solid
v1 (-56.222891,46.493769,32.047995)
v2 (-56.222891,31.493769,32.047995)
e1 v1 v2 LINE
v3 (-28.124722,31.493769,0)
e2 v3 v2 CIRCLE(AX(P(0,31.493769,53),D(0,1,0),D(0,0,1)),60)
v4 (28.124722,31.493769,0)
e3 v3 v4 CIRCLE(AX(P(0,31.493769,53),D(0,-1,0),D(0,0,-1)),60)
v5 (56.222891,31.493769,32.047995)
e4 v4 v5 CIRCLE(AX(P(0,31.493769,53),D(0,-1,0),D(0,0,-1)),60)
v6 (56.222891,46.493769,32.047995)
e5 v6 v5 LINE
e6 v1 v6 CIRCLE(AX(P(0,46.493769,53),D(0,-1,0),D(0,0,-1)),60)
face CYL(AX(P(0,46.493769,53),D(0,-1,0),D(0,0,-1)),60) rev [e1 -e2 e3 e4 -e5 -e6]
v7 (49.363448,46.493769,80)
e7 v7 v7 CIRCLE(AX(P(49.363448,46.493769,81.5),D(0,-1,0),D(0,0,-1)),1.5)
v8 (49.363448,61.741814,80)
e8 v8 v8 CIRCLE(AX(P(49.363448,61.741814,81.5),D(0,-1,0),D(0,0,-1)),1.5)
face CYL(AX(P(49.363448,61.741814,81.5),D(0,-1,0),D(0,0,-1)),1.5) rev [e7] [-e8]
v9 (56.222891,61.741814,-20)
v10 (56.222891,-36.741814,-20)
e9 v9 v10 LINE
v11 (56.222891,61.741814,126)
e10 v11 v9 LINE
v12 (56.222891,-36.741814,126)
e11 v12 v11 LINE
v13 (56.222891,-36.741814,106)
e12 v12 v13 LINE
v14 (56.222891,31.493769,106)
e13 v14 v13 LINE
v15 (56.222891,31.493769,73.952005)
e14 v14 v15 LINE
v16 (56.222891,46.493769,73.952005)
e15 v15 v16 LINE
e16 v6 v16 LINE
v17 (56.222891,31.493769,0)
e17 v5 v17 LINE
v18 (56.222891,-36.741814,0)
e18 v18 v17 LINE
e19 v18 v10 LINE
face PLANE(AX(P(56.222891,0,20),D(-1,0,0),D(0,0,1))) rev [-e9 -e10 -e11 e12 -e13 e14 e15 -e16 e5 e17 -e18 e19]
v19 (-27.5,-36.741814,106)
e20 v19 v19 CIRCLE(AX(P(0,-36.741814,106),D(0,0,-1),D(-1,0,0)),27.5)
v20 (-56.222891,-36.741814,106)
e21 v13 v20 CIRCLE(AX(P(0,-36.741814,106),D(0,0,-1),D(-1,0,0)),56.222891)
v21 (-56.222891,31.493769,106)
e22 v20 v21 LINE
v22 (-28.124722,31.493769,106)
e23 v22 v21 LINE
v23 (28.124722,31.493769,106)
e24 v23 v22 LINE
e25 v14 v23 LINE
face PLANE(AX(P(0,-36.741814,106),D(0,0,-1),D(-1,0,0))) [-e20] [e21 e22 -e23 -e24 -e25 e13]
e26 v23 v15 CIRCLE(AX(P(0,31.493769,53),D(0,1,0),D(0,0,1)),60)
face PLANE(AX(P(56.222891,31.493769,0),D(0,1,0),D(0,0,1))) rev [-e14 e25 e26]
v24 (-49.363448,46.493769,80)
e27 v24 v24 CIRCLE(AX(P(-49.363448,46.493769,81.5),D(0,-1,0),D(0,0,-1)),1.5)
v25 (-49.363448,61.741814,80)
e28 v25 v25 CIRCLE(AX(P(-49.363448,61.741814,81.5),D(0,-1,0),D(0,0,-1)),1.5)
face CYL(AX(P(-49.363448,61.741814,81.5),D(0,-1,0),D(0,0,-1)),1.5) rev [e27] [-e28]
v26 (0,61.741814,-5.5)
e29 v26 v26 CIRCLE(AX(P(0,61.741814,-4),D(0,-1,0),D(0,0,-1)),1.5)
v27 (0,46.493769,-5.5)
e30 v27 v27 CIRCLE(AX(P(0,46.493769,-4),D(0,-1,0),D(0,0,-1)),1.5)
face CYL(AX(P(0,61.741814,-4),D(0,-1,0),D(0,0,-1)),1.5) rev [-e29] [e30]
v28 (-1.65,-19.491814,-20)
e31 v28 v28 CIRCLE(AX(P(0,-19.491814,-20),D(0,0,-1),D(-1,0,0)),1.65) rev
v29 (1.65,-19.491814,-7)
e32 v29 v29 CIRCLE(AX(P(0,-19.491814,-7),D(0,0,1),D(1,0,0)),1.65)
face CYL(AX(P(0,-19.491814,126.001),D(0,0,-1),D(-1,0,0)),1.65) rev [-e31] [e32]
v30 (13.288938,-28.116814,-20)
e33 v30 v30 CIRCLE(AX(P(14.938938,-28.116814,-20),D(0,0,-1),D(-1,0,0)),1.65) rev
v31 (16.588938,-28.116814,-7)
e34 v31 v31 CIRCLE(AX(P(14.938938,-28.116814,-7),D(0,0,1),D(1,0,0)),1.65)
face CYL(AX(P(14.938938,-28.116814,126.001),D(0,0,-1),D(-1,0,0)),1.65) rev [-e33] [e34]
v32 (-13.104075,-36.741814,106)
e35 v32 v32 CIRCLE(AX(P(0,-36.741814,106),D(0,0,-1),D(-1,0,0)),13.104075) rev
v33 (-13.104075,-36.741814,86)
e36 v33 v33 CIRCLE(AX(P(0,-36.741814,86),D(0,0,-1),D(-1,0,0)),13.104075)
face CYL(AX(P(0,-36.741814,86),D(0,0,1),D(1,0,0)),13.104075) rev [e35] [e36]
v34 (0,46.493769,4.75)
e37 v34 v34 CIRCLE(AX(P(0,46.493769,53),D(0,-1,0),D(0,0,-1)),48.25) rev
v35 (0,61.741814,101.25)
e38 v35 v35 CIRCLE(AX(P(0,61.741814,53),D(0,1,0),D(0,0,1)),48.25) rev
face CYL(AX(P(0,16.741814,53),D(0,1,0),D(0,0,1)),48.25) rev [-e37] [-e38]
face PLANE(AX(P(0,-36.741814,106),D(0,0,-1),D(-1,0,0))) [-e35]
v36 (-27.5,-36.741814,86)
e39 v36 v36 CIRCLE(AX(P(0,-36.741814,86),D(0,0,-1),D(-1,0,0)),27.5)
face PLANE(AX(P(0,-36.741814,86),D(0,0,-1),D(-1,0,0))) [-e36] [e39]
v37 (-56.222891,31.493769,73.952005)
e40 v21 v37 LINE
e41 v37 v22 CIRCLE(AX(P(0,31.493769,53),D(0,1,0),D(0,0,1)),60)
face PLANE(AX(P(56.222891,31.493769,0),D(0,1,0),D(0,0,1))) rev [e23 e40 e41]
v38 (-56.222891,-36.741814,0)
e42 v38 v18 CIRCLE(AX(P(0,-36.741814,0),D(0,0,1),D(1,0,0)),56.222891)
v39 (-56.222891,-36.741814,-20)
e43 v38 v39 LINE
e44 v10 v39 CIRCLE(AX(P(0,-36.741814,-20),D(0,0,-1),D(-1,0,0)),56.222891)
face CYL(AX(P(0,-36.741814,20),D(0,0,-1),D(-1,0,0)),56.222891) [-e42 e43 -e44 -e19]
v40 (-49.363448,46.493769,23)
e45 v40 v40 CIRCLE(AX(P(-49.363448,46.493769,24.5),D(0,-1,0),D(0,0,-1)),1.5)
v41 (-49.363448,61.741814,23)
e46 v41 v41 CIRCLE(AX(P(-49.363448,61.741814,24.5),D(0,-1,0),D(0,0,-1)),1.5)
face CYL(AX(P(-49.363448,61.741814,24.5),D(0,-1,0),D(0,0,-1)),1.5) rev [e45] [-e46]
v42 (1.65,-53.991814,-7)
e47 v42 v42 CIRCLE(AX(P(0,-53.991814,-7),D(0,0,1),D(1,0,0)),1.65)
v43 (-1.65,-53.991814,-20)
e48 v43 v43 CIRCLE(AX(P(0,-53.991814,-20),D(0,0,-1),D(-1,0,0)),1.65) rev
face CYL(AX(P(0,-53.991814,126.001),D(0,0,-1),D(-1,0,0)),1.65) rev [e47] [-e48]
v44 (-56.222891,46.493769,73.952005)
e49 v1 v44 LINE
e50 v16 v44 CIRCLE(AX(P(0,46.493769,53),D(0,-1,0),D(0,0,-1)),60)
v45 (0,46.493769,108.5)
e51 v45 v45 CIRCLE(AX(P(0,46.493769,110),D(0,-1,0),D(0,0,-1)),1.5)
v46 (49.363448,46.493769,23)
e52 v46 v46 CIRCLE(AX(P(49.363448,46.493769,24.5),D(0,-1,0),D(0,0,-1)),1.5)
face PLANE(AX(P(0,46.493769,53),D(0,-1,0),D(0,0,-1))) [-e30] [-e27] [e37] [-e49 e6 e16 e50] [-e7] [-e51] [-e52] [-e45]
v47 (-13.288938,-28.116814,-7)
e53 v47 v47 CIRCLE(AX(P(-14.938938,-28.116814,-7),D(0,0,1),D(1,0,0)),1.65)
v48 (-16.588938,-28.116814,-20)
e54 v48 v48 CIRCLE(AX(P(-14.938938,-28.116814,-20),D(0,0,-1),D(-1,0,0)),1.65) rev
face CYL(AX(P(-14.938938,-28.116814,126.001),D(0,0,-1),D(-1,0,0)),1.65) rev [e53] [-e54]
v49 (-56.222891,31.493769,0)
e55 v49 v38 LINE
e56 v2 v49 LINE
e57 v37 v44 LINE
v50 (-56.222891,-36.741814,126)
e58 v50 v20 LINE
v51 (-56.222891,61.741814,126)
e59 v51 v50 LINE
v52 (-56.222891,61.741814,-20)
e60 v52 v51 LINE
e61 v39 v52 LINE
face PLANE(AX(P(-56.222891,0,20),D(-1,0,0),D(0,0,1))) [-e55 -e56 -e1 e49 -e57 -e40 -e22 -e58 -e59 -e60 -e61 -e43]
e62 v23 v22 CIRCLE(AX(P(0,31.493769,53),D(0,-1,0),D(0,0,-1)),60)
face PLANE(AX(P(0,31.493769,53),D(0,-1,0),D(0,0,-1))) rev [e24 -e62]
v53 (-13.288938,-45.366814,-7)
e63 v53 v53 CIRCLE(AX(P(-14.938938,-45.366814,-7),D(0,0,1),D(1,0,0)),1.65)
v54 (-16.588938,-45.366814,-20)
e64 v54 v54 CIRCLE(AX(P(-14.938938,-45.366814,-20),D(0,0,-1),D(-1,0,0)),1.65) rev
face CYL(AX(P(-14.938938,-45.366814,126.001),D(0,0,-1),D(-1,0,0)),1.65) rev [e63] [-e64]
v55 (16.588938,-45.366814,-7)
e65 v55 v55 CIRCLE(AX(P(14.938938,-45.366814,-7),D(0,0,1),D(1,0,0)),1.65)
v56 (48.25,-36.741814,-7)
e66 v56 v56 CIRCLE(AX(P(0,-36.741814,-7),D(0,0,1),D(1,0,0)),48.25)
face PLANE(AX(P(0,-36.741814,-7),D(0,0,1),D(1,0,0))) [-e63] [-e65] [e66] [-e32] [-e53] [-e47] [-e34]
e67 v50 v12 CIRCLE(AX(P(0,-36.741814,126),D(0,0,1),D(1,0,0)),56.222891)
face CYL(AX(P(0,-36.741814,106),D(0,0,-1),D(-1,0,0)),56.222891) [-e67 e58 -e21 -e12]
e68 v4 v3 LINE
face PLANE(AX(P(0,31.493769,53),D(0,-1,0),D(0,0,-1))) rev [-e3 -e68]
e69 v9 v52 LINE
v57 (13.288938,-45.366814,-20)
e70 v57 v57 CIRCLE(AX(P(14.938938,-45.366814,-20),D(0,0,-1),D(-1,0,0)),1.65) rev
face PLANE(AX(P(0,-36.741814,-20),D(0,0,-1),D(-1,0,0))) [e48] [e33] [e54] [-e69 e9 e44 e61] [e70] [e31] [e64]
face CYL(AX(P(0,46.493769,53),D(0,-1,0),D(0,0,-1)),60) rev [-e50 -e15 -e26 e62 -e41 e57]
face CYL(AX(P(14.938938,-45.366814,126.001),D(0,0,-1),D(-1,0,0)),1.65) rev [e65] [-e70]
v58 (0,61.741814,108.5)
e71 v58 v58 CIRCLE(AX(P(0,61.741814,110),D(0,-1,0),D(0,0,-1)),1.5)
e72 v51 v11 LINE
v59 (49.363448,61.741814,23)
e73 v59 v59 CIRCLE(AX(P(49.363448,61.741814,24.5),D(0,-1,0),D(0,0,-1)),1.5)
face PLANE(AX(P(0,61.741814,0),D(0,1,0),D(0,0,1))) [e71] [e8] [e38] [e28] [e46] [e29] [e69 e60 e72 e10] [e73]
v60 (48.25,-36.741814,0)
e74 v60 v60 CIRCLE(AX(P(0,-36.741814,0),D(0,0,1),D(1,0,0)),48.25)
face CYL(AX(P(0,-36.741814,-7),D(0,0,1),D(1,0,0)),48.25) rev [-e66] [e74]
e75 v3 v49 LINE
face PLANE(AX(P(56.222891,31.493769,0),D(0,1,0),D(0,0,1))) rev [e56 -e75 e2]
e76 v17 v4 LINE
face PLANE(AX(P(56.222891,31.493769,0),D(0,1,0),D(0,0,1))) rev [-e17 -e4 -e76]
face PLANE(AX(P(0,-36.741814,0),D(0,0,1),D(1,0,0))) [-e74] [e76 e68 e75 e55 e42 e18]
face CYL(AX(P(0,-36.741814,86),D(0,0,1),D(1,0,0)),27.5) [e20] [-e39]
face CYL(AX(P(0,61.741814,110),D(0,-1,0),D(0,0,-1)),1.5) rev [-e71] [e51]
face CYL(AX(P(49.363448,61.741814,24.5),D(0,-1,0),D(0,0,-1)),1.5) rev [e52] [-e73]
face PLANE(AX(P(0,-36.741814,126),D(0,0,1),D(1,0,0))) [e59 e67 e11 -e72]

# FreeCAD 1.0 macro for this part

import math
import FreeCAD as App
import Part
import Sketcher

V = App.Vector
Q = App.Units.Quantity


def add_polygon(sketch, points):
    """Adds a closed chain of lines whose ends are joined by coincident constraints."""
    first, n = sketch.GeometryCount, len(points)
    for a, b in zip(points, points[1:] + points[:1]):
        sketch.addGeometry(Part.LineSegment(App.Vector(*a, 0), App.Vector(*b, 0)), False)
    for i in range(n):
        sketch.addConstraint(Sketcher.Constraint("Coincident", first + i, 2, first + (i + 1) % n, 1))

doc = App.newDocument("Part")
params = doc.addObject("Spreadsheet::Sheet", "Params")
for row, (alias, value) in enumerate([
    ("sketch1_diameter", "96.5 mm"),
    ("pad1_length", "20 mm"),
    ("pad2_length", "66 mm"),
    ("sketch3_diameter", "96.5 mm"),
    ("pad3_length", "20 mm"),
    ("sketch4_diameter", "96.5 mm"),
    ("pocket1_length", "20 mm"),
    ("sketch5_diameter", "96.5 mm"),
    ("pad4_length", "20 mm"),
    ("sketch6_height", "2 mm"),
    ("pocket2_length", "20 mm"),
    ("sketch7_diameter", "96.5 mm"),
    ("pad5_length", "20 mm"),
    ("sketch8_height", "2 mm"),
    ("pocket3_length", "20 mm"),
    ("sketch9_diameter", "96.5 mm"),
    ("pad6_length", "20 mm"),
    ("sketch10_diameter", "96.5 mm"),
    ("pad7_length", "20 mm"),
    ("sketch11_diameter", "3.3 mm"),
    ("pad8_length", "10 mm"),
    ("sketch12_diameter", "3.3 mm"),
    ("pad9_length", "10 mm"),
    ("sketch13_diameter", "55 mm"),
    ("pad10_length", "20 mm"),
    ("sketch14_diameter", "3.3 mm"),
    ("sketch15_diameter", "3.3 mm"),
    ("sketch16_diameter", "3.3 mm"),
    ("sketch17_diameter", "3.3 mm"),
    ("sketch18_diameter", "3.3 mm"),
    ("sketch19_diameter", "3.3 mm"),
    ("sketch20_diameter", "3.3 mm"),
    ("sketch21_diameter", "3.3 mm"),
    ("sketch22_diameter", "3.3 mm"),
    ("sketch23_diameter", "3.3 mm"),
    ("sketch24_diameter", "3.3 mm"),
    ("sketch25_diameter", "3.3 mm"),
    ("sketch26_diameter", "96.5 mm"),
    ("pocket16_length", "7 mm"),
    ("sketch27_width", "25 mm"),
    ("sketch27_height", "106 mm"),
    ("sketch28_diameter", "96.5 mm"),
    ("sketch28_height", "146 mm"),
    ("pad11_length", "25 mm"),
    ("sketch29_diameter", "120 mm"),
    ("pocket18_length", "15 mm"),
    ("sketch30_diameter", "3 mm"),
], start=1):
    params.set(f"A{row}", alias)
    params.set(f"B{row}", "=" + value)
    params.setAlias(f"B{row}", alias)

body = doc.addObject("PartDesign::Body", "Body")
body.AllowCompound = True

# Sketch on XY plane
sketch1 = body.newObject("Sketcher::SketchObject", "Sketch")
sketch1.AttachmentSupport = (doc.getObject("XY_Plane"), [""])
sketch1.MapMode = "FlatFace"
sketch1.addGeometry(Part.LineSegment(V(-56, 37, 0), V(-56, -37, 0)), False)
sketch1.addGeometry(Part.ArcOfCircle(Part.Circle(V(0, -37, 0), V(0, 0, 1), 56), math.radians(180), math.radians(360)), False)
sketch1.addGeometry(Part.LineSegment(V(56, -37, 0), V(56, 37, 0)), False)
sketch1.addGeometry(Part.LineSegment(V(56, 37, 0), V(-56, 37, 0)), False)
sketch1.addGeometry(Part.Circle(V(0, -37, 0), V(0, 0, 1), 48), False)
sketch1.addConstraint(Sketcher.Constraint("Tangent", 0, 2, 1, 1))
sketch1.addConstraint(Sketcher.Constraint("Tangent", 1, 2, 2, 1))
sketch1.addConstraint(Sketcher.Constraint("Coincident", 2, 2, 3, 1))
sketch1.addConstraint(Sketcher.Constraint("Coincident", 3, 2, 0, 1))
sketch1.addConstraint(Sketcher.Constraint("Vertical", 0))
sketch1.addConstraint(Sketcher.Constraint("Vertical", 2))
sketch1.addConstraint(Sketcher.Constraint("Horizontal", 3))
sketch1.addConstraint(Sketcher.Constraint("Coincident", 4, 3, 1, 3))
sketch1.addConstraint(Sketcher.Constraint("Symmetric", 0, 2, 2, 2, -1, 1))
sketch1.addConstraint(Sketcher.Constraint("Diameter", 4, Q("96.5 mm")))
sketch1.addConstraint(Sketcher.Constraint("Radius", 1, Q("56.222891 mm")))
sketch1.addConstraint(Sketcher.Constraint("DistanceY", 0, 2, 0, 1, Q("73.483628 mm")))
sketch1.setExpression("Constraints[9]", "Params.sketch1_diameter")
pad1 = body.newObject("PartDesign::Pad", "Pad")
pad1.Profile = sketch1
pad1.setExpression("Length", "Params.pad1_length")

# Sketch on XY plane
sketch2 = body.newObject("Sketcher::SketchObject", "Sketch001")
sketch2.AttachmentSupport = (doc.getObject("XY_Plane"), [""])
sketch2.MapMode = "FlatFace"
sketch2.AttachmentOffset = App.Placement(V(0, 0, 20), App.Rotation())
add_polygon(sketch2, [(-56, 6), (-44, 19), (44, 19), (56, 6), (56, 37), (-56, 37)])  # lines 0-5
sketch2.addConstraint(Sketcher.Constraint("Horizontal", 1))
sketch2.addConstraint(Sketcher.Constraint("Vertical", 3))
sketch2.addConstraint(Sketcher.Constraint("Horizontal", 4))
sketch2.addConstraint(Sketcher.Constraint("Vertical", 5))
sketch2.addConstraint(Sketcher.Constraint("Symmetric", 2, 2, 5, 2, -2))
sketch2.addConstraint(Sketcher.Constraint("Perpendicular", 0, 2))
sketch2.addConstraint(Sketcher.Constraint("Equal", 0, 2))
sketch2.addConstraint(Sketcher.Constraint("DistanceY", 1, 2, 3, 2, Q("18 mm")))
sketch2.addConstraint(Sketcher.Constraint("Distance", 0, Q("17.321351 mm")))
sketch2.addConstraint(Sketcher.Constraint("DistanceX", 1, 1, 1, 2, Q("87.949693 mm")))
sketch2.addConstraint(Sketcher.Constraint("DistanceY", -1, 1, 2, 2, Q("6.493769 mm")))
pad2 = body.newObject("PartDesign::Pad", "Pad001")
pad2.Profile = sketch2
pad2.setExpression("Length", "Params.pad2_length")

# Sketch on XY plane
sketch3 = body.newObject("Sketcher::SketchObject", "Sketch002")
sketch3.AttachmentSupport = (doc.getObject("XY_Plane"), [""])
sketch3.MapMode = "FlatFace"
sketch3.AttachmentOffset = App.Placement(V(0, 0, 86), App.Rotation())
sketch3.addGeometry(Part.LineSegment(V(-56, 37, 0), V(-56, -37, 0)), False)
sketch3.addGeometry(Part.ArcOfCircle(Part.Circle(V(0, -37, 0), V(0, 0, 1), 56), math.radians(180), math.radians(360)), False)
sketch3.addGeometry(Part.LineSegment(V(56, -37, 0), V(56, 37, 0)), False)
sketch3.addGeometry(Part.LineSegment(V(56, 37, 0), V(-56, 37, 0)), False)
sketch3.addGeometry(Part.Circle(V(0, -37, 0), V(0, 0, 1), 48), False)
sketch3.addConstraint(Sketcher.Constraint("Tangent", 0, 2, 1, 1))
sketch3.addConstraint(Sketcher.Constraint("Tangent", 1, 2, 2, 1))
sketch3.addConstraint(Sketcher.Constraint("Coincident", 2, 2, 3, 1))
sketch3.addConstraint(Sketcher.Constraint("Coincident", 3, 2, 0, 1))
sketch3.addConstraint(Sketcher.Constraint("Vertical", 0))
sketch3.addConstraint(Sketcher.Constraint("Vertical", 2))
sketch3.addConstraint(Sketcher.Constraint("Horizontal", 3))
sketch3.addConstraint(Sketcher.Constraint("Coincident", 4, 3, 1, 3))
sketch3.addConstraint(Sketcher.Constraint("Symmetric", 0, 2, 2, 2, -1, 1))
sketch3.addConstraint(Sketcher.Constraint("Diameter", 4, Q("96.5 mm")))
sketch3.addConstraint(Sketcher.Constraint("Radius", 1, Q("56.222891 mm")))
sketch3.addConstraint(Sketcher.Constraint("DistanceY", 0, 2, 0, 1, Q("73.483628 mm")))
sketch3.setExpression("Constraints[9]", "Params.sketch3_diameter")
pad3 = body.newObject("PartDesign::Pad", "Pad002")
pad3.Profile = sketch3
pad3.setExpression("Length", "Params.pad3_length")

# Sketch on XZ plane
sketch4 = body.newObject("Sketcher::SketchObject", "Sketch003")
sketch4.AttachmentSupport = (doc.getObject("XZ_Plane"), [""])
sketch4.MapMode = "FlatFace"
sketch4.AttachmentOffset = App.Placement(V(0, 0, -36.741814), App.Rotation())
sketch4.addGeometry(Part.Circle(V(0, 53, 0), V(0, 0, 1), 48), False)
sketch4.addConstraint(Sketcher.Constraint("PointOnObject", 0, 3, -2))
sketch4.addConstraint(Sketcher.Constraint("Diameter", 0, Q("96.5 mm")))
sketch4.addConstraint(Sketcher.Constraint("DistanceY", -1, 1, 0, 3, Q("53 mm")))
sketch4.setExpression("Constraints[1]", "Params.sketch4_diameter")
pocket1 = body.newObject("PartDesign::Pocket", "Pocket")
pocket1.Profile = sketch4
pocket1.setExpression("Length", "Params.pocket1_length")
pocket1.Reversed = True

# Sketch on XY plane
sketch5 = body.newObject("Sketcher::SketchObject", "Sketch004")
sketch5.AttachmentSupport = (doc.getObject("XY_Plane"), [""])
sketch5.MapMode = "FlatFace"
sketch5.AttachmentOffset = App.Placement(V(0, 0, 106), App.Rotation())
sketch5.addGeometry(Part.LineSegment(V(56, -37, 0), V(56, 37, 0)), False)
sketch5.addGeometry(Part.LineSegment(V(56, 37, 0), V(-56, 37, 0)), False)
sketch5.addGeometry(Part.LineSegment(V(-56, 37, 0), V(-56, -37, 0)), False)
sketch5.addGeometry(Part.ArcOfCircle(Part.Circle(V(0, -37, 0), V(0, 0, 1), 56), math.radians(180), math.radians(360)), False)
sketch5.addGeometry(Part.Circle(V(0, -37, 0), V(0, 0, 1), 48), False)
sketch5.addConstraint(Sketcher.Constraint("Coincident", 0, 2, 1, 1))
sketch5.addConstraint(Sketcher.Constraint("Coincident", 1, 2, 2, 1))
sketch5.addConstraint(Sketcher.Constraint("Tangent", 2, 2, 3, 1))
sketch5.addConstraint(Sketcher.Constraint("Tangent", 3, 2, 0, 1))
sketch5.addConstraint(Sketcher.Constraint("Vertical", 0))
sketch5.addConstraint(Sketcher.Constraint("Horizontal", 1))
sketch5.addConstraint(Sketcher.Constraint("Vertical", 2))
sketch5.addConstraint(Sketcher.Constraint("Coincident", 4, 3, 3, 3))
sketch5.addConstraint(Sketcher.Constraint("Symmetric", 0, 2, 2, 2, -1, 1))
sketch5.addConstraint(Sketcher.Constraint("Diameter", 4, Q("96.5 mm")))
sketch5.addConstraint(Sketcher.Constraint("Radius", 3, Q("56.222891 mm")))
sketch5.addConstraint(Sketcher.Constraint("DistanceY", 0, 1, 0, 2, Q("73.483628 mm")))
sketch5.setExpression("Constraints[9]", "Params.sketch5_diameter")
pad4 = body.newObject("PartDesign::Pad", "Pad003")
pad4.Profile = sketch5
pad4.setExpression("Length", "Params.pad4_length")

# Sketch on XY plane
sketch6 = body.newObject("Sketcher::SketchObject", "Sketch005")
sketch6.AttachmentSupport = (doc.getObject("XY_Plane"), [""])
sketch6.MapMode = "FlatFace"
sketch6.AttachmentOffset = App.Placement(V(0, 0, 86), App.Rotation())
sketch6.addGeometry(Part.LineSegment(V(-35.2, 16.7, 0), V(35.2, 16.7, 0)), False)
sketch6.addGeometry(Part.LineSegment(V(35.2, 16.7, 0), V(35.2, 18.7, 0)), False)
sketch6.addGeometry(Part.LineSegment(V(35.2, 18.7, 0), V(44, 18.7, 0)), False)
sketch6.addGeometry(Part.LineSegment(V(44, 18.7, 0), V(56.2, 6.5, 0)), False)
sketch6.addGeometry(Part.LineSegment(V(56.2, 6.5, 0), V(56.2, -36.7, 0)), False)
sketch6.addGeometry(Part.ArcOfCircle(Part.Circle(V(0, -36.7, 0), V(0, 0, 1), 56.2), math.radians(180), math.radians(360)), False)
sketch6.addGeometry(Part.LineSegment(V(-56.2, -36.7, 0), V(-56.2, 6.5, 0)), False)
sketch6.addGeometry(Part.LineSegment(V(-56.2, 6.5, 0), V(-44, 18.7, 0)), False)
sketch6.addGeometry(Part.LineSegment(V(-44, 18.7, 0), V(-35.2, 18.7, 0)), False)
sketch6.addGeometry(Part.LineSegment(V(-35.2, 18.7, 0), V(-35.2, 16.7, 0)), False)
sketch6.addConstraint(Sketcher.Constraint("Coincident", 0, 2, 1, 1))
sketch6.addConstraint(Sketcher.Constraint("Coincident", 1, 2, 2, 1))
sketch6.addConstraint(Sketcher.Constraint("Coincident", 2, 2, 3, 1))
sketch6.addConstraint(Sketcher.Constraint("Coincident", 3, 2, 4, 1))
sketch6.addConstraint(Sketcher.Constraint("Tangent", 4, 2, 5, 2))
sketch6.addConstraint(Sketcher.Constraint("Tangent", 5, 1, 6, 1))
sketch6.addConstraint(Sketcher.Constraint("Coincident", 6, 2, 7, 1))
sketch6.addConstraint(Sketcher.Constraint("Coincident", 7, 2, 8, 1))
sketch6.addConstraint(Sketcher.Constraint("Coincident", 8, 2, 9, 1))
sketch6.addConstraint(Sketcher.Constraint("Coincident", 9, 2, 0, 1))
sketch6.addConstraint(Sketcher.Constraint("Horizontal", 0))
sketch6.addConstraint(Sketcher.Constraint("Vertical", 1))
sketch6.addConstraint(Sketcher.Constraint("Horizontal", 2))
sketch6.addConstraint(Sketcher.Constraint("Vertical", 4))
sketch6.addConstraint(Sketcher.Constraint("Vertical", 6))
sketch6.addConstraint(Sketcher.Constraint("Horizontal", 8))
sketch6.addConstraint(Sketcher.Constraint("Vertical", 9))
sketch6.addConstraint(Sketcher.Constraint("Symmetric", 3, 2, 6, 2, -2))
sketch6.addConstraint(Sketcher.Constraint("Symmetric", 2, 2, 7, 2, -2))
sketch6.addConstraint(Sketcher.Constraint("Perpendicular", 3, 7))
sketch6.addConstraint(Sketcher.Constraint("Equal", 2, 8))
sketch6.addConstraint(Sketcher.Constraint("DistanceY", 1, 1, 1, 2, Q("2 mm")))
sketch6.addConstraint(Sketcher.Constraint("Radius", 5, Q("56.222891 mm")))
sketch6.addConstraint(Sketcher.Constraint("DistanceX", 0, 1, 0, 2, Q("70.400639 mm")))
sketch6.addConstraint(Sketcher.Constraint("Distance", 3, Q("17.321351 mm")))
sketch6.addConstraint(Sketcher.Constraint("DistanceY", 4, 2, 4, 1, Q("43.235583 mm")))
sketch6.addConstraint(Sketcher.Constraint("DistanceY", -1, 1, 3, 2, Q("6.493769 mm")))
sketch6.setExpression("Constraints[21]", "Params.sketch6_height")
pocket2 = body.newObject("PartDesign::Pocket", "Pocket001")
pocket2.Profile = sketch6
pocket2.setExpression("Length", "Params.pocket2_length")
pocket2.Reversed = True

# Sketch on XY plane
sketch7 = body.newObject("Sketcher::SketchObject", "Sketch006")
sketch7.AttachmentSupport = (doc.getObject("XY_Plane"), [""])
sketch7.MapMode = "FlatFace"
sketch7.AttachmentOffset = App.Placement(V(0, 0, -20), App.Rotation())
sketch7.addGeometry(Part.LineSegment(V(-56, -37, 0), V(-56, 37, 0)), False)
sketch7.addGeometry(Part.LineSegment(V(-56, 37, 0), V(56, 37, 0)), False)
sketch7.addGeometry(Part.LineSegment(V(56, 37, 0), V(56, -37, 0)), False)
sketch7.addGeometry(Part.ArcOfCircle(Part.Circle(V(0, -37, 0), V(0, 0, 1), 56), math.radians(180), math.radians(360)), False)
sketch7.addGeometry(Part.Circle(V(0, -37, 0), V(0, 0, 1), 48), False)
sketch7.addConstraint(Sketcher.Constraint("Coincident", 0, 2, 1, 1))
sketch7.addConstraint(Sketcher.Constraint("Coincident", 1, 2, 2, 1))
sketch7.addConstraint(Sketcher.Constraint("Tangent", 2, 2, 3, 2))
sketch7.addConstraint(Sketcher.Constraint("Tangent", 3, 1, 0, 1))
sketch7.addConstraint(Sketcher.Constraint("Vertical", 0))
sketch7.addConstraint(Sketcher.Constraint("Horizontal", 1))
sketch7.addConstraint(Sketcher.Constraint("Vertical", 2))
sketch7.addConstraint(Sketcher.Constraint("Coincident", 4, 3, 3, 3))
sketch7.addConstraint(Sketcher.Constraint("Symmetric", 0, 2, 2, 2, -1, 1))
sketch7.addConstraint(Sketcher.Constraint("Diameter", 4, Q("96.5 mm")))
sketch7.addConstraint(Sketcher.Constraint("Radius", 3, Q("56.222891 mm")))
sketch7.addConstraint(Sketcher.Constraint("DistanceY", 0, 1, 0, 2, Q("73.483628 mm")))
sketch7.setExpression("Constraints[9]", "Params.sketch7_diameter")
pad5 = body.newObject("PartDesign::Pad", "Pad004")
pad5.Profile = sketch7
pad5.setExpression("Length", "Params.pad5_length")

# Sketch on XY plane
sketch8 = body.newObject("Sketcher::SketchObject", "Sketch007")
sketch8.AttachmentSupport = (doc.getObject("XY_Plane"), [""])
sketch8.MapMode = "FlatFace"
sketch8.addGeometry(Part.LineSegment(V(35.2, 18.7, 0), V(35.2, 16.7, 0)), False)
sketch8.addGeometry(Part.LineSegment(V(35.2, 16.7, 0), V(-35.2, 16.7, 0)), False)
sketch8.addGeometry(Part.LineSegment(V(-35.2, 16.7, 0), V(-35.2, 18.7, 0)), False)
sketch8.addGeometry(Part.LineSegment(V(-35.2, 18.7, 0), V(-44, 18.7, 0)), False)
sketch8.addGeometry(Part.LineSegment(V(-44, 18.7, 0), V(-56.2, 6.5, 0)), False)
sketch8.addGeometry(Part.LineSegment(V(-56.2, 6.5, 0), V(-56.2, -36.7, 0)), False)
sketch8.addGeometry(Part.ArcOfCircle(Part.Circle(V(0, -36.7, 0), V(0, 0, 1), 56.2), math.radians(180), math.radians(360)), False)
sketch8.addGeometry(Part.LineSegment(V(56.2, -36.7, 0), V(56.2, 6.5, 0)), False)
sketch8.addGeometry(Part.LineSegment(V(56.2, 6.5, 0), V(44, 18.7, 0)), False)
sketch8.addGeometry(Part.LineSegment(V(44, 18.7, 0), V(35.2, 18.7, 0)), False)
sketch8.addConstraint(Sketcher.Constraint("Coincident", 0, 2, 1, 1))
sketch8.addConstraint(Sketcher.Constraint("Coincident", 1, 2, 2, 1))
sketch8.addConstraint(Sketcher.Constraint("Coincident", 2, 2, 3, 1))
sketch8.addConstraint(Sketcher.Constraint("Coincident", 3, 2, 4, 1))
sketch8.addConstraint(Sketcher.Constraint("Coincident", 4, 2, 5, 1))
sketch8.addConstraint(Sketcher.Constraint("Tangent", 5, 2, 6, 1))
sketch8.addConstraint(Sketcher.Constraint("Tangent", 6, 2, 7, 1))
sketch8.addConstraint(Sketcher.Constraint("Coincident", 7, 2, 8, 1))
sketch8.addConstraint(Sketcher.Constraint("Coincident", 8, 2, 9, 1))
sketch8.addConstraint(Sketcher.Constraint("Coincident", 9, 2, 0, 1))
sketch8.addConstraint(Sketcher.Constraint("Vertical", 0))
sketch8.addConstraint(Sketcher.Constraint("Horizontal", 1))
sketch8.addConstraint(Sketcher.Constraint("Vertical", 2))
sketch8.addConstraint(Sketcher.Constraint("Horizontal", 3))
sketch8.addConstraint(Sketcher.Constraint("Vertical", 5))
sketch8.addConstraint(Sketcher.Constraint("Vertical", 7))
sketch8.addConstraint(Sketcher.Constraint("Horizontal", 9))
sketch8.addConstraint(Sketcher.Constraint("Symmetric", 4, 2, 7, 2, -2))
sketch8.addConstraint(Sketcher.Constraint("Symmetric", 3, 2, 8, 2, -2))
sketch8.addConstraint(Sketcher.Constraint("Perpendicular", 4, 8))
sketch8.addConstraint(Sketcher.Constraint("Equal", 3, 9))
sketch8.addConstraint(Sketcher.Constraint("DistanceY", 0, 2, 0, 1, Q("2 mm")))
sketch8.addConstraint(Sketcher.Constraint("Radius", 6, Q("56.222891 mm")))
sketch8.addConstraint(Sketcher.Constraint("DistanceX", 1, 2, 1, 1, Q("70.400639 mm")))
sketch8.addConstraint(Sketcher.Constraint("Distance", 4, Q("17.321351 mm")))
sketch8.addConstraint(Sketcher.Constraint("DistanceY", 5, 2, 5, 1, Q("43.235583 mm")))
sketch8.addConstraint(Sketcher.Constraint("DistanceY", -1, 1, 4, 2, Q("6.493769 mm")))
sketch8.setExpression("Constraints[21]", "Params.sketch8_height")
pocket3 = body.newObject("PartDesign::Pocket", "Pocket002")
pocket3.Profile = sketch8
pocket3.setExpression("Length", "Params.pocket3_length")
pocket3.Reversed = True

# Sketch on XY plane
sketch9 = body.newObject("Sketcher::SketchObject", "Sketch008")
sketch9.AttachmentSupport = (doc.getObject("XY_Plane"), [""])
sketch9.MapMode = "FlatFace"
sketch9.AttachmentOffset = App.Placement(V(0, 0, -20), App.Rotation())
sketch9.addGeometry(Part.Circle(V(0, -37, 0), V(0, 0, 1), 48), False)
sketch9.addConstraint(Sketcher.Constraint("PointOnObject", 0, 3, -2))
sketch9.addConstraint(Sketcher.Constraint("Diameter", 0, Q("96.5 mm")))
sketch9.addConstraint(Sketcher.Constraint("DistanceY", 0, 3, -1, 1, Q("36.741814 mm")))
sketch9.setExpression("Constraints[1]", "Params.sketch9_diameter")
pad6 = body.newObject("PartDesign::Pad", "Pad005")
pad6.Profile = sketch9
pad6.setExpression("Length", "Params.pad6_length")

# Sketch on XY plane
sketch10 = body.newObject("Sketcher::SketchObject", "Sketch009")
sketch10.AttachmentSupport = (doc.getObject("XY_Plane"), [""])
sketch10.MapMode = "FlatFace"
sketch10.AttachmentOffset = App.Placement(V(0, 0, 106), App.Rotation())
sketch10.addGeometry(Part.Circle(V(0, -37, 0), V(0, 0, 1), 48), False)
sketch10.addConstraint(Sketcher.Constraint("PointOnObject", 0, 3, -2))
sketch10.addConstraint(Sketcher.Constraint("Diameter", 0, Q("96.5 mm")))
sketch10.addConstraint(Sketcher.Constraint("DistanceY", 0, 3, -1, 1, Q("36.741814 mm")))
sketch10.setExpression("Constraints[1]", "Params.sketch10_diameter")
pad7 = body.newObject("PartDesign::Pad", "Pad006")
pad7.Profile = sketch10
pad7.setExpression("Length", "Params.pad7_length")

# Sketch on XY plane
sketch11 = body.newObject("Sketcher::SketchObject", "Sketch010")
sketch11.AttachmentSupport = (doc.getObject("XY_Plane"), [""])
sketch11.MapMode = "FlatFace"
sketch11.addGeometry(Part.Circle(V(-14.9, -45.4, 0), V(0, 0, 1), 1.6), False)
sketch11.addGeometry(Part.Circle(V(0, -54, 0), V(0, 0, 1), 1.6), False)
sketch11.addGeometry(Part.Circle(V(14.9, -45.4, 0), V(0, 0, 1), 1.6), False)
sketch11.addGeometry(Part.Circle(V(14.9, -28.1, 0), V(0, 0, 1), 1.6), False)
sketch11.addGeometry(Part.Circle(V(0, -19.5, 0), V(0, 0, 1), 1.6), False)
sketch11.addGeometry(Part.Circle(V(-14.9, -28.1, 0), V(0, 0, 1), 1.6), False)
sketch11.addConstraint(Sketcher.Constraint("Equal", 0, 1))
sketch11.addConstraint(Sketcher.Constraint("Equal", 1, 2))
sketch11.addConstraint(Sketcher.Constraint("Equal", 2, 3))
sketch11.addConstraint(Sketcher.Constraint("Equal", 3, 4))
sketch11.addConstraint(Sketcher.Constraint("Equal", 4, 5))
sketch11.addConstraint(Sketcher.Constraint("Symmetric", 0, 3, 2, 3, -2))
sketch11.addConstraint(Sketcher.Constraint("Symmetric", 3, 3, 5, 3, -2))
sketch11.addConstraint(Sketcher.Constraint("PointOnObject", 1, 3, -2))
sketch11.addConstraint(Sketcher.Constraint("PointOnObject", 4, 3, -2))
sketch11.addConstraint(Sketcher.Constraint("Vertical", 2, 3, 3, 3))
sketch11.addConstraint(Sketcher.Constraint("Diameter", 0, Q("3.3 mm")))
sketch11.addConstraint(Sketcher.Constraint("DistanceY", 1, 3, 4, 3, Q("34.5 mm")))
sketch11.addConstraint(Sketcher.Constraint("DistanceY", 2, 3, 3, 3, Q("17.25 mm")))
sketch11.addConstraint(Sketcher.Constraint("DistanceY", 1, 3, 0, 3, Q("8.625 mm")))
sketch11.addConstraint(Sketcher.Constraint("DistanceX", 0, 3, -1, 1, Q("14.938938 mm")))
sketch11.addConstraint(Sketcher.Constraint("DistanceY", 0, 3, -1, 1, Q("45.366814 mm")))
sketch11.setExpression("Constraints[10]", "Params.sketch11_diameter")
pad8 = body.newObject("PartDesign::Pad", "Pad007")
pad8.Profile = sketch11
pad8.setExpression("Length", "Params.pad8_length")

# Sketch on XY plane
sketch12 = body.newObject("Sketcher::SketchObject", "Sketch011")
sketch12.AttachmentSupport = (doc.getObject("XY_Plane"), [""])
sketch12.MapMode = "FlatFace"
sketch12.AttachmentOffset = App.Placement(V(0, 0, 96), App.Rotation())
sketch12.addGeometry(Part.Circle(V(-14.9, -28.1, 0), V(0, 0, 1), 1.6), False)
sketch12.addGeometry(Part.Circle(V(-14.9, -45.4, 0), V(0, 0, 1), 1.6), False)
sketch12.addGeometry(Part.Circle(V(0, -54, 0), V(0, 0, 1), 1.6), False)
sketch12.addGeometry(Part.Circle(V(14.9, -45.4, 0), V(0, 0, 1), 1.6), False)
sketch12.addGeometry(Part.Circle(V(14.9, -28.1, 0), V(0, 0, 1), 1.6), False)
sketch12.addGeometry(Part.Circle(V(0, -19.5, 0), V(0, 0, 1), 1.6), False)
sketch12.addConstraint(Sketcher.Constraint("Equal", 0, 1))
sketch12.addConstraint(Sketcher.Constraint("Equal", 1, 2))
sketch12.addConstraint(Sketcher.Constraint("Equal", 2, 3))
sketch12.addConstraint(Sketcher.Constraint("Equal", 3, 4))
sketch12.addConstraint(Sketcher.Constraint("Equal", 4, 5))
sketch12.addConstraint(Sketcher.Constraint("Symmetric", 1, 3, 3, 3, -2))
sketch12.addConstraint(Sketcher.Constraint("Symmetric", 0, 3, 4, 3, -2))
sketch12.addConstraint(Sketcher.Constraint("PointOnObject", 2, 3, -2))
sketch12.addConstraint(Sketcher.Constraint("PointOnObject", 5, 3, -2))
sketch12.addConstraint(Sketcher.Constraint("Vertical", 0, 3, 1, 3))
sketch12.addConstraint(Sketcher.Constraint("Diameter", 0, Q("3.3 mm")))
sketch12.addConstraint(Sketcher.Constraint("DistanceY", 2, 3, 5, 3, Q("34.5 mm")))
sketch12.addConstraint(Sketcher.Constraint("DistanceY", 1, 3, 0, 3, Q("17.25 mm")))
sketch12.addConstraint(Sketcher.Constraint("DistanceY", 2, 3, 1, 3, Q("8.625 mm")))
sketch12.addConstraint(Sketcher.Constraint("DistanceX", 0, 3, -1, 1, Q("14.938938 mm")))
sketch12.addConstraint(Sketcher.Constraint("DistanceY", 0, 3, -1, 1, Q("28.116814 mm")))
sketch12.setExpression("Constraints[10]", "Params.sketch12_diameter")
pad9 = body.newObject("PartDesign::Pad", "Pad008")
pad9.Profile = sketch12
pad9.setExpression("Length", "Params.pad9_length")

# Sketch on XY plane
sketch13 = body.newObject("Sketcher::SketchObject", "Sketch012")
sketch13.AttachmentSupport = (doc.getObject("XY_Plane"), [""])
sketch13.MapMode = "FlatFace"
sketch13.AttachmentOffset = App.Placement(V(0, 0, 106), App.Rotation())
sketch13.addGeometry(Part.Circle(V(0, -37, 0), V(0, 0, 1), 28), False)
sketch13.addGeometry(Part.Circle(V(0, -37, 0), V(0, 0, 1), 13), False)
sketch13.addConstraint(Sketcher.Constraint("Coincident", 1, 3, 0, 3))
sketch13.addConstraint(Sketcher.Constraint("PointOnObject", 0, 3, -2))
sketch13.addConstraint(Sketcher.Constraint("Diameter", 0, Q("55 mm")))
sketch13.addConstraint(Sketcher.Constraint("Diameter", 1, Q("26.208149 mm")))
sketch13.addConstraint(Sketcher.Constraint("DistanceY", 0, 3, -1, 1, Q("36.741814 mm")))
sketch13.setExpression("Constraints[2]", "Params.sketch13_diameter")
pad10 = body.newObject("PartDesign::Pad", "Pad009")
pad10.Profile = sketch13
pad10.setExpression("Length", "Params.pad10_length")
pad10.Reversed = True

# Sketch on XY plane
sketch14 = body.newObject("Sketcher::SketchObject", "Sketch013")
sketch14.AttachmentSupport = (doc.getObject("XY_Plane"), [""])
sketch14.MapMode = "FlatFace"
sketch14.addGeometry(Part.Circle(V(-14.9, -45.4, 0), V(0, 0, 1), 1.6), False)
sketch14.addConstraint(Sketcher.Constraint("Diameter", 0, Q("3.3 mm")))
sketch14.addConstraint(Sketcher.Constraint("DistanceX", 0, 3, -1, 1, Q("14.938938 mm")))
sketch14.addConstraint(Sketcher.Constraint("DistanceY", 0, 3, -1, 1, Q("45.366814 mm")))
sketch14.setExpression("Constraints[0]", "Params.sketch14_diameter")
pocket4 = body.newObject("PartDesign::Pocket", "Pocket003")
pocket4.Profile = sketch14
pocket4.Type = "UpToFirst"

# Sketch on XY plane
sketch15 = body.newObject("Sketcher::SketchObject", "Sketch014")
sketch15.AttachmentSupport = (doc.getObject("XY_Plane"), [""])
sketch15.MapMode = "FlatFace"
sketch15.addGeometry(Part.Circle(V(0, -54, 0), V(0, 0, 1), 1.6), False)
sketch15.addConstraint(Sketcher.Constraint("PointOnObject", 0, 3, -2))
sketch15.addConstraint(Sketcher.Constraint("Diameter", 0, Q("3.3 mm")))
sketch15.addConstraint(Sketcher.Constraint("DistanceY", 0, 3, -1, 1, Q("53.991814 mm")))
sketch15.setExpression("Constraints[1]", "Params.sketch15_diameter")
pocket5 = body.newObject("PartDesign::Pocket", "Pocket004")
pocket5.Profile = sketch15
pocket5.Type = "UpToFirst"

# Sketch on XY plane
sketch16 = body.newObject("Sketcher::SketchObject", "Sketch015")
sketch16.AttachmentSupport = (doc.getObject("XY_Plane"), [""])
sketch16.MapMode = "FlatFace"
sketch16.addGeometry(Part.Circle(V(14.9, -45.4, 0), V(0, 0, 1), 1.6), False)
sketch16.addConstraint(Sketcher.Constraint("Diameter", 0, Q("3.3 mm")))
sketch16.addConstraint(Sketcher.Constraint("DistanceX", -1, 1, 0, 3, Q("14.938938 mm")))
sketch16.addConstraint(Sketcher.Constraint("DistanceY", 0, 3, -1, 1, Q("45.366814 mm")))
sketch16.setExpression("Constraints[0]", "Params.sketch16_diameter")
pocket6 = body.newObject("PartDesign::Pocket", "Pocket005")
pocket6.Profile = sketch16
pocket6.Type = "UpToFirst"

# Sketch on XY plane
sketch17 = body.newObject("Sketcher::SketchObject", "Sketch016")
sketch17.AttachmentSupport = (doc.getObject("XY_Plane"), [""])
sketch17.MapMode = "FlatFace"
sketch17.addGeometry(Part.Circle(V(14.9, -28.1, 0), V(0, 0, 1), 1.6), False)
sketch17.addConstraint(Sketcher.Constraint("Diameter", 0, Q("3.3 mm")))
sketch17.addConstraint(Sketcher.Constraint("DistanceX", -1, 1, 0, 3, Q("14.938938 mm")))
sketch17.addConstraint(Sketcher.Constraint("DistanceY", 0, 3, -1, 1, Q("28.116814 mm")))
sketch17.setExpression("Constraints[0]", "Params.sketch17_diameter")
pocket7 = body.newObject("PartDesign::Pocket", "Pocket006")
pocket7.Profile = sketch17
pocket7.Type = "UpToFirst"

# Sketch on XY plane
sketch18 = body.newObject("Sketcher::SketchObject", "Sketch017")
sketch18.AttachmentSupport = (doc.getObject("XY_Plane"), [""])
sketch18.MapMode = "FlatFace"
sketch18.addGeometry(Part.Circle(V(0, -19.5, 0), V(0, 0, 1), 1.6), False)
sketch18.addConstraint(Sketcher.Constraint("PointOnObject", 0, 3, -2))
sketch18.addConstraint(Sketcher.Constraint("Diameter", 0, Q("3.3 mm")))
sketch18.addConstraint(Sketcher.Constraint("DistanceY", 0, 3, -1, 1, Q("19.491814 mm")))
sketch18.setExpression("Constraints[1]", "Params.sketch18_diameter")
pocket8 = body.newObject("PartDesign::Pocket", "Pocket007")
pocket8.Profile = sketch18
pocket8.Type = "UpToFirst"

# Sketch on XY plane
sketch19 = body.newObject("Sketcher::SketchObject", "Sketch018")
sketch19.AttachmentSupport = (doc.getObject("XY_Plane"), [""])
sketch19.MapMode = "FlatFace"
sketch19.addGeometry(Part.Circle(V(-14.9, -28.1, 0), V(0, 0, 1), 1.6), False)
sketch19.addConstraint(Sketcher.Constraint("Diameter", 0, Q("3.3 mm")))
sketch19.addConstraint(Sketcher.Constraint("DistanceX", 0, 3, -1, 1, Q("14.938938 mm")))
sketch19.addConstraint(Sketcher.Constraint("DistanceY", 0, 3, -1, 1, Q("28.116814 mm")))
sketch19.setExpression("Constraints[0]", "Params.sketch19_diameter")
pocket9 = body.newObject("PartDesign::Pocket", "Pocket008")
pocket9.Profile = sketch19
pocket9.Type = "UpToFirst"

# Sketch on XY plane
sketch20 = body.newObject("Sketcher::SketchObject", "Sketch019")
sketch20.AttachmentSupport = (doc.getObject("XY_Plane"), [""])
sketch20.MapMode = "FlatFace"
sketch20.addGeometry(Part.Circle(V(-14.9, -45.4, 0), V(0, 0, 1), 1.6), False)
sketch20.addConstraint(Sketcher.Constraint("Diameter", 0, Q("3.3 mm")))
sketch20.addConstraint(Sketcher.Constraint("DistanceX", 0, 3, -1, 1, Q("14.938938 mm")))
sketch20.addConstraint(Sketcher.Constraint("DistanceY", 0, 3, -1, 1, Q("45.366814 mm")))
sketch20.setExpression("Constraints[0]", "Params.sketch20_diameter")
pocket10 = body.newObject("PartDesign::Pocket", "Pocket009")
pocket10.Profile = sketch20
pocket10.Type = "UpToFirst"
pocket10.Reversed = True

# Sketch on XY plane
sketch21 = body.newObject("Sketcher::SketchObject", "Sketch020")
sketch21.AttachmentSupport = (doc.getObject("XY_Plane"), [""])
sketch21.MapMode = "FlatFace"
sketch21.addGeometry(Part.Circle(V(0, -54, 0), V(0, 0, 1), 1.6), False)
sketch21.addConstraint(Sketcher.Constraint("PointOnObject", 0, 3, -2))
sketch21.addConstraint(Sketcher.Constraint("Diameter", 0, Q("3.3 mm")))
sketch21.addConstraint(Sketcher.Constraint("DistanceY", 0, 3, -1, 1, Q("53.991814 mm")))
sketch21.setExpression("Constraints[1]", "Params.sketch21_diameter")
pocket11 = body.newObject("PartDesign::Pocket", "Pocket010")
pocket11.Profile = sketch21
pocket11.Type = "UpToFirst"
pocket11.Reversed = True

# Sketch on XY plane
sketch22 = body.newObject("Sketcher::SketchObject", "Sketch021")
sketch22.AttachmentSupport = (doc.getObject("XY_Plane"), [""])
sketch22.MapMode = "FlatFace"
sketch22.addGeometry(Part.Circle(V(14.9, -45.4, 0), V(0, 0, 1), 1.6), False)
sketch22.addConstraint(Sketcher.Constraint("Diameter", 0, Q("3.3 mm")))
sketch22.addConstraint(Sketcher.Constraint("DistanceX", -1, 1, 0, 3, Q("14.938938 mm")))
sketch22.addConstraint(Sketcher.Constraint("DistanceY", 0, 3, -1, 1, Q("45.366814 mm")))
sketch22.setExpression("Constraints[0]", "Params.sketch22_diameter")
pocket12 = body.newObject("PartDesign::Pocket", "Pocket011")
pocket12.Profile = sketch22
pocket12.Type = "UpToFirst"
pocket12.Reversed = True

# Sketch on XY plane
sketch23 = body.newObject("Sketcher::SketchObject", "Sketch022")
sketch23.AttachmentSupport = (doc.getObject("XY_Plane"), [""])
sketch23.MapMode = "FlatFace"
sketch23.addGeometry(Part.Circle(V(14.9, -28.1, 0), V(0, 0, 1), 1.6), False)
sketch23.addConstraint(Sketcher.Constraint("Diameter", 0, Q("3.3 mm")))
sketch23.addConstraint(Sketcher.Constraint("DistanceX", -1, 1, 0, 3, Q("14.938938 mm")))
sketch23.addConstraint(Sketcher.Constraint("DistanceY", 0, 3, -1, 1, Q("28.116814 mm")))
sketch23.setExpression("Constraints[0]", "Params.sketch23_diameter")
pocket13 = body.newObject("PartDesign::Pocket", "Pocket012")
pocket13.Profile = sketch23
pocket13.Type = "UpToFirst"
pocket13.Reversed = True

# Sketch on XY plane
sketch24 = body.newObject("Sketcher::SketchObject", "Sketch023")
sketch24.AttachmentSupport = (doc.getObject("XY_Plane"), [""])
sketch24.MapMode = "FlatFace"
sketch24.addGeometry(Part.Circle(V(0, -19.5, 0), V(0, 0, 1), 1.6), False)
sketch24.addConstraint(Sketcher.Constraint("PointOnObject", 0, 3, -2))
sketch24.addConstraint(Sketcher.Constraint("Diameter", 0, Q("3.3 mm")))
sketch24.addConstraint(Sketcher.Constraint("DistanceY", 0, 3, -1, 1, Q("19.491814 mm")))
sketch24.setExpression("Constraints[1]", "Params.sketch24_diameter")
pocket14 = body.newObject("PartDesign::Pocket", "Pocket013")
pocket14.Profile = sketch24
pocket14.Type = "UpToFirst"
pocket14.Reversed = True

# Sketch on XY plane
sketch25 = body.newObject("Sketcher::SketchObject", "Sketch024")
sketch25.AttachmentSupport = (doc.getObject("XY_Plane"), [""])
sketch25.MapMode = "FlatFace"
sketch25.addGeometry(Part.Circle(V(-14.9, -28.1, 0), V(0, 0, 1), 1.6), False)
sketch25.addConstraint(Sketcher.Constraint("Diameter", 0, Q("3.3 mm")))
sketch25.addConstraint(Sketcher.Constraint("DistanceX", 0, 3, -1, 1, Q("14.938938 mm")))
sketch25.addConstraint(Sketcher.Constraint("DistanceY", 0, 3, -1, 1, Q("28.116814 mm")))
sketch25.setExpression("Constraints[0]", "Params.sketch25_diameter")
pocket15 = body.newObject("PartDesign::Pocket", "Pocket014")
pocket15.Profile = sketch25
pocket15.Type = "UpToFirst"
pocket15.Reversed = True

# Sketch on XY plane
sketch26 = body.newObject("Sketcher::SketchObject", "Sketch025")
sketch26.AttachmentSupport = (doc.getObject("XY_Plane"), [""])
sketch26.MapMode = "FlatFace"
sketch26.addGeometry(Part.Circle(V(0, -37, 0), V(0, 0, 1), 48), False)
sketch26.addConstraint(Sketcher.Constraint("PointOnObject", 0, 3, -2))
sketch26.addConstraint(Sketcher.Constraint("Diameter", 0, Q("96.5 mm")))
sketch26.addConstraint(Sketcher.Constraint("DistanceY", 0, 3, -1, 1, Q("36.741814 mm")))
sketch26.setExpression("Constraints[1]", "Params.sketch26_diameter")
pocket16 = body.newObject("PartDesign::Pocket", "Pocket015")
pocket16.Profile = sketch26
pocket16.setExpression("Length", "Params.pocket16_length")

# Sketch on YZ plane
sketch27 = body.newObject("Sketcher::SketchObject", "Sketch026")
sketch27.AttachmentSupport = (doc.getObject("YZ_Plane"), [""])
sketch27.MapMode = "FlatFace"
sketch27.AttachmentOffset = App.Placement(V(0, 0, -56.222891), App.Rotation())
add_polygon(sketch27, [(6, 106), (31, 106), (31, 0), (6, 0)])  # lines 0-3
sketch27.addConstraint(Sketcher.Constraint("Horizontal", 0))
sketch27.addConstraint(Sketcher.Constraint("Vertical", 1))
sketch27.addConstraint(Sketcher.Constraint("Horizontal", 2))
sketch27.addConstraint(Sketcher.Constraint("Vertical", 3))
sketch27.addConstraint(Sketcher.Constraint("PointOnObject", 1, 2, -1))
sketch27.addConstraint(Sketcher.Constraint("DistanceX", 0, 1, 0, 2, Q("25 mm")))
sketch27.addConstraint(Sketcher.Constraint("DistanceY", 1, 2, 1, 1, Q("106 mm")))
sketch27.addConstraint(Sketcher.Constraint("DistanceX", -1, 1, 0, 2, Q("31.493769 mm")))
sketch27.setExpression("Constraints[9]", "Params.sketch27_width")
sketch27.setExpression("Constraints[10]", "Params.sketch27_height")
pocket17 = body.newObject("PartDesign::Pocket", "Pocket016")
pocket17.Profile = sketch27
pocket17.Type = "ThroughAll"
pocket17.Reversed = True

# Sketch on XZ plane
sketch28 = body.newObject("Sketcher::SketchObject", "Sketch027")
sketch28.AttachmentSupport = (doc.getObject("XZ_Plane"), [""])
sketch28.MapMode = "FlatFace"
sketch28.AttachmentOffset = App.Placement(V(0, 0, -61.741814), App.Rotation())
add_polygon(sketch28, [(-56, -20), (-56, 126), (56, 126), (56, -20)])  # lines 0-3
sketch28.addGeometry(Part.Circle(V(0, 53, 0), V(0, 0, 1), 48), False)  # 4
sketch28.addConstraint(Sketcher.Constraint("Vertical", 0))
sketch28.addConstraint(Sketcher.Constraint("Horizontal", 1))
sketch28.addConstraint(Sketcher.Constraint("Vertical", 2))
sketch28.addConstraint(Sketcher.Constraint("Horizontal", 3))
sketch28.addConstraint(Sketcher.Constraint("PointOnObject", 4, 3, -2))
sketch28.addConstraint(Sketcher.Constraint("Diameter", 4, Q("96.5 mm")))
sketch28.addConstraint(Sketcher.Constraint("DistanceY", 0, 1, 0, 2, Q("146 mm")))
sketch28.addConstraint(Sketcher.Constraint("DistanceY", -1, 1, 4, 3, Q("53 mm")))
sketch28.addConstraint(Sketcher.Constraint("DistanceY", -1, 1, 0, 2, Q("126 mm")))
sketch28.addConstraint(Sketcher.Constraint("DistanceX", 1, 1, 1, 2, Q("112.445783 mm")))
sketch28.addConstraint(Sketcher.Constraint("DistanceX", 0, 2, -1, 1, Q("56.222891 mm")))
sketch28.setExpression("Constraints[9]", "Params.sketch28_diameter")
sketch28.setExpression("Constraints[10]", "Params.sketch28_height")
pad11 = body.newObject("PartDesign::Pad", "Pad010")
pad11.Profile = sketch28
pad11.setExpression("Length", "Params.pad11_length")

# Sketch on XZ plane
sketch29 = body.newObject("Sketcher::SketchObject", "Sketch028")
sketch29.AttachmentSupport = (doc.getObject("XZ_Plane"), [""])
sketch29.MapMode = "FlatFace"
sketch29.AttachmentOffset = App.Placement(V(0, 0, -31.493769), App.Rotation())
sketch29.addGeometry(Part.Circle(V(0, 53, 0), V(0, 0, 1), 60), False)
sketch29.addConstraint(Sketcher.Constraint("PointOnObject", 0, 3, -2))
sketch29.addConstraint(Sketcher.Constraint("Diameter", 0, Q("120 mm")))
sketch29.addConstraint(Sketcher.Constraint("DistanceY", -1, 1, 0, 3, Q("53 mm")))
sketch29.setExpression("Constraints[1]", "Params.sketch29_diameter")
pocket18 = body.newObject("PartDesign::Pocket", "Pocket017")
pocket18.Profile = sketch29
pocket18.setExpression("Length", "Params.pocket18_length")

# Sketch on XZ plane
sketch30 = body.newObject("Sketcher::SketchObject", "Sketch029")
sketch30.AttachmentSupport = (doc.getObject("XZ_Plane"), [""])
sketch30.MapMode = "FlatFace"
sketch30.AttachmentOffset = App.Placement(V(0, 0, -46.493769), App.Rotation())
sketch30.addGeometry(Part.Circle(V(0, 110, 0), V(0, 0, 1), 1.5), False)
sketch30.addGeometry(Part.Circle(V(49.4, 81.5, 0), V(0, 0, 1), 1.5), False)
sketch30.addGeometry(Part.Circle(V(49.4, 24.5, 0), V(0, 0, 1), 1.5), False)
sketch30.addGeometry(Part.Circle(V(0, -4, 0), V(0, 0, 1), 1.5), False)
sketch30.addGeometry(Part.Circle(V(-49.4, 24.5, 0), V(0, 0, 1), 1.5), False)
sketch30.addGeometry(Part.Circle(V(-49.4, 81.5, 0), V(0, 0, 1), 1.5), False)
sketch30.addConstraint(Sketcher.Constraint("Equal", 0, 1))
sketch30.addConstraint(Sketcher.Constraint("Equal", 1, 2))
sketch30.addConstraint(Sketcher.Constraint("Equal", 2, 3))
sketch30.addConstraint(Sketcher.Constraint("Equal", 3, 4))
sketch30.addConstraint(Sketcher.Constraint("Equal", 4, 5))
sketch30.addConstraint(Sketcher.Constraint("Symmetric", 2, 3, 4, 3, -2))
sketch30.addConstraint(Sketcher.Constraint("Symmetric", 1, 3, 5, 3, -2))
sketch30.addConstraint(Sketcher.Constraint("PointOnObject", 0, 3, -2))
sketch30.addConstraint(Sketcher.Constraint("PointOnObject", 3, 3, -2))
sketch30.addConstraint(Sketcher.Constraint("Vertical", 1, 3, 2, 3))
sketch30.addConstraint(Sketcher.Constraint("Diameter", 0, Q("3 mm")))
sketch30.addConstraint(Sketcher.Constraint("DistanceY", -1, 1, 0, 3, Q("110 mm")))
sketch30.addConstraint(Sketcher.Constraint("DistanceY", 3, 3, -1, 1, Q("4 mm")))
sketch30.addConstraint(Sketcher.Constraint("DistanceY", 2, 3, 1, 3, Q("57 mm")))
sketch30.addConstraint(Sketcher.Constraint("DistanceY", -1, 1, 1, 3, Q("81.5 mm")))
sketch30.addConstraint(Sketcher.Constraint("DistanceX", -1, 1, 1, 3, Q("49.363448 mm")))
sketch30.setExpression("Constraints[10]", "Params.sketch30_diameter")
pocket19 = body.newObject("PartDesign::Pocket", "Pocket018")
pocket19.Profile = sketch30
pocket19.Type = "ThroughAll"

doc.recompute()
